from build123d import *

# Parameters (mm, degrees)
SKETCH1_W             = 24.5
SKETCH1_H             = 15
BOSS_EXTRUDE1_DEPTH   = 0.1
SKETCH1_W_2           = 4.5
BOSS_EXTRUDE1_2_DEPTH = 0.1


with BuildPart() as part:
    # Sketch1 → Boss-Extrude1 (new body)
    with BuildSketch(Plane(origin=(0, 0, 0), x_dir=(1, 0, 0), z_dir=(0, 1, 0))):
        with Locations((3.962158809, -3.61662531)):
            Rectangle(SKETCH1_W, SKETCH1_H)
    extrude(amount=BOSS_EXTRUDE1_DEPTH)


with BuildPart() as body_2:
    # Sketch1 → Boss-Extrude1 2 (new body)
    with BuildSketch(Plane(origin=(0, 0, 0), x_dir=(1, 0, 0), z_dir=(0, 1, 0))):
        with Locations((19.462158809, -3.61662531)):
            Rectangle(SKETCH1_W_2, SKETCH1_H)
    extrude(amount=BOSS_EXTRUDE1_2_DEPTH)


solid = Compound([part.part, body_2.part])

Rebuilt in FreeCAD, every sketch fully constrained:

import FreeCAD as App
import Part
import Sketcher

V = App.Vector
Q = App.Units.Quantity

doc = App.newDocument("Part")
body = doc.addObject("PartDesign::Body", "Body")

# Sketch on XZ plane
sketch1 = doc.addObject("Sketcher::SketchObject", "Sketch")
body.addObject(sketch1)
sketch1.AttachmentSupport = (doc.XZ_Plane, [""])
sketch1.MapMode = "FlatFace"
sketch1.addGeometry(Part.LineSegment(V(-8, -4, 0), V(-8, 11, 0)), False)
sketch1.addGeometry(Part.LineSegment(V(-8, 11, 0), V(16, 11, 0)), False)
sketch1.addGeometry(Part.LineSegment(V(16, 11, 0), V(16, -4, 0)), False)
sketch1.addGeometry(Part.LineSegment(V(16, -4, 0), V(-8, -4, 0)), False)
sketch1.addConstraint(Sketcher.Constraint("Coincident", 0, 2, 1, 1))
sketch1.addConstraint(Sketcher.Constraint("Coincident", 1, 2, 2, 1))
sketch1.addConstraint(Sketcher.Constraint("Coincident", 2, 2, 3, 1))
sketch1.addConstraint(Sketcher.Constraint("Coincident", 3, 2, 0, 1))
sketch1.addConstraint(Sketcher.Constraint("Vertical", 0))
sketch1.addConstraint(Sketcher.Constraint("Horizontal", 1))
sketch1.addConstraint(Sketcher.Constraint("Vertical", 2))
sketch1.addConstraint(Sketcher.Constraint("Horizontal", 3))
sketch1.addConstraint(Sketcher.Constraint("DistanceY", 0, 1, 0, 2, Q("15 mm")))
sketch1.addConstraint(Sketcher.Constraint("DistanceX", 1, 1, 1, 2, Q("24.5 mm")))
sketch1.addConstraint(Sketcher.Constraint("DistanceX", 0, 2, -1, 1, Q("8.287841 mm")))
sketch1.addConstraint(Sketcher.Constraint("DistanceY", -1, 1, 0, 2, Q("11.116625 mm")))
pad1 = doc.addObject("PartDesign::Pad", "Pad")
body.addObject(pad1)
pad1.Profile = sketch1
pad1.Length = 0.1
pad1.Reversed = True
body2 = doc.addObject("PartDesign::Body", "Body001")

# Sketch on XZ plane
sketch2 = doc.addObject("Sketcher::SketchObject", "Sketch001")
body2.addObject(sketch2)
sketch2.AttachmentSupport = (doc.getObject("XZ_Plane001"), [""])
sketch2.MapMode = "FlatFace"
sketch2.addGeometry(Part.LineSegment(V(17.2, -3.9, 0), V(17.2, 11.1, 0)), False)
sketch2.addGeometry(Part.LineSegment(V(17.2, 11.1, 0), V(21.7, 11.1, 0)), False)
sketch2.addGeometry(Part.LineSegment(V(21.7, 11.1, 0), V(21.7, -3.9, 0)), False)
sketch2.addGeometry(Part.LineSegment(V(21.7, -3.9, 0), V(17.2, -3.9, 0)), False)
sketch2.addConstraint(Sketcher.Constraint("Coincident", 0, 2, 1, 1))
sketch2.addConstraint(Sketcher.Constraint("Coincident", 1, 2, 2, 1))
sketch2.addConstraint(Sketcher.Constraint("Coincident", 2, 2, 3, 1))
sketch2.addConstraint(Sketcher.Constraint("Coincident", 3, 2, 0, 1))
sketch2.addConstraint(Sketcher.Constraint("Vertical", 0))
sketch2.addConstraint(Sketcher.Constraint("Horizontal", 1))
sketch2.addConstraint(Sketcher.Constraint("Vertical", 2))
sketch2.addConstraint(Sketcher.Constraint("Horizontal", 3))
sketch2.addConstraint(Sketcher.Constraint("DistanceY", 0, 1, 0, 2, Q("15 mm")))
sketch2.addConstraint(Sketcher.Constraint("DistanceX", 1, 1, 1, 2, Q("4.5 mm")))
sketch2.addConstraint(Sketcher.Constraint("DistanceX", -1, 1, 0, 2, Q("17.212159 mm")))
sketch2.addConstraint(Sketcher.Constraint("DistanceY", -1, 1, 0, 2, Q("11.116625 mm")))
pad2 = doc.addObject("PartDesign::Pad", "Pad001")
body2.addObject(pad2)
pad2.Profile = sketch2
pad2.Length = 0.1
pad2.Reversed = True

doc.recompute()
